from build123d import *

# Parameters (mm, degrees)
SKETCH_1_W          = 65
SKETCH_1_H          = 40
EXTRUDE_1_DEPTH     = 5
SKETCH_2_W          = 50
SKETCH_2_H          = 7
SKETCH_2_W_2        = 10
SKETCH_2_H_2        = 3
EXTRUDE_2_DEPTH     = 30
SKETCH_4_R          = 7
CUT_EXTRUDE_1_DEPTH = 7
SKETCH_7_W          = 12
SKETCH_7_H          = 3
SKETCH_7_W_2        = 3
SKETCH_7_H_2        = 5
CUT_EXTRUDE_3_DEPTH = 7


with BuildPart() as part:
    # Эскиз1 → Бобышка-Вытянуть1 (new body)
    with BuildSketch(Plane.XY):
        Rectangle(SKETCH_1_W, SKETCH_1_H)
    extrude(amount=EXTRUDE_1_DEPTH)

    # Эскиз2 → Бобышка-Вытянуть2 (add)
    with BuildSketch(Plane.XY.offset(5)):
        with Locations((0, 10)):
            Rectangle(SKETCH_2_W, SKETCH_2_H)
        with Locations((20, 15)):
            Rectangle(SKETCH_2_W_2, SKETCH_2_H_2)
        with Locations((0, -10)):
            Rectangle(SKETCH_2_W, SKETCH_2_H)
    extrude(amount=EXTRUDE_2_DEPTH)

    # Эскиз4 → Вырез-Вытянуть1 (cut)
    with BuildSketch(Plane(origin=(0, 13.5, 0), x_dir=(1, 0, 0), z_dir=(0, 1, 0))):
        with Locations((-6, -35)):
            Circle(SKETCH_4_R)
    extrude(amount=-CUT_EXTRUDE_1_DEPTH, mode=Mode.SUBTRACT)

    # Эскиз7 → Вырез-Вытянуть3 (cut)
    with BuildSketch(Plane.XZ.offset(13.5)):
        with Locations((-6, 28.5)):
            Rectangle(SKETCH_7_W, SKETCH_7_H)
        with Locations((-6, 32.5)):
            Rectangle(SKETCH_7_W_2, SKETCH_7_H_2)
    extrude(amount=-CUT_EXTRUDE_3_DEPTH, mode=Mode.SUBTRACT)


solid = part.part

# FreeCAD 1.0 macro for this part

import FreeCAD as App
import Part
import Sketcher


def add_polygon(sketch, points):
    """Adds a closed chain of lines whose ends are joined by coincident constraints."""
    first, n = sketch.GeometryCount, len(points)
    for a, b in zip(points, points[1:] + points[:1]):
        sketch.addGeometry(Part.LineSegment(App.Vector(*a, 0), App.Vector(*b, 0)), False)
    for i in range(n):
        sketch.addConstraint(Sketcher.Constraint("Coincident", first + i, 2, first + (i + 1) % n, 1))

doc = App.newDocument("Part")
body = doc.addObject("PartDesign::Body", "Body")

sketch1 = doc.addObject("Sketcher::SketchObject", "Sketch")
body.addObject(sketch1)
sketch1.AttachmentSupport = (doc.XY_Plane, [""])
sketch1.MapMode = "FlatFace"
add_polygon(sketch1, [(-32, 20), (-32, -20), (32, -20), (32, 20)])
sketch1.addConstraint([
    Sketcher.Constraint("Vertical", 0),
    Sketcher.Constraint("Horizontal", 1),
    Sketcher.Constraint("Vertical", 2),
    Sketcher.Constraint("Horizontal", 3),
    Sketcher.Constraint("Symmetric", 0, 2, 2, 2, -1, 1),
    Sketcher.Constraint("DistanceX", 1, 1, 1, 2, 65.0),
    Sketcher.Constraint("DistanceY", 0, 2, 0, 1, 40.0),
])
pad1 = doc.addObject("PartDesign::Pad", "Pad")
body.addObject(pad1)
pad1.Profile = sketch1
pad1.Length = 5

sketch2 = doc.addObject("Sketcher::SketchObject", "Sketch001")
body.addObject(sketch2)
sketch2.AttachmentSupport = (doc.XY_Plane, [""])
sketch2.MapMode = "FlatFace"
sketch2.AttachmentOffset = App.Placement(App.Vector(0, 0, 5), App.Rotation())
add_polygon(sketch2, [(-25, 13.5), (-25, 6.5), (25, 6.5), (25, 16.5), (15, 16.5), (15, 13.5)])
add_polygon(sketch2, [(-25, -6.5), (-25, -13.5), (25, -13.5), (25, -6.5)])
sketch2.addConstraint([
    Sketcher.Constraint("Vertical", 0),
    Sketcher.Constraint("Horizontal", 1),
    Sketcher.Constraint("Vertical", 2),
    Sketcher.Constraint("Horizontal", 3),
    Sketcher.Constraint("Vertical", 4),
    Sketcher.Constraint("Horizontal", 5),
    Sketcher.Constraint("Vertical", 6),
    Sketcher.Constraint("Horizontal", 7),
    Sketcher.Constraint("Vertical", 8),
    Sketcher.Constraint("Horizontal", 9),
    Sketcher.Constraint("Symmetric", 5, 2, 7, 2, -1, 1),
    Sketcher.Constraint("Symmetric", 1, 2, 9, 2, -1, 1),
    Sketcher.Constraint("Vertical", 5, 2, 6, 2),
    Sketcher.Constraint("Equal", 3, 2),
    Sketcher.Constraint("DistanceX", 1, 1, 1, 2, 50.0),
    Sketcher.Constraint("DistanceX", 3, 2, 3, 1, 10.0),
    Sketcher.Constraint("DistanceY", 0, 2, 0, 1, 7.0),
    Sketcher.Constraint("DistanceY", 6, 2, 0, 2, 20.0),
])
pad2 = doc.addObject("PartDesign::Pad", "Pad001")
body.addObject(pad2)
pad2.Profile = sketch2
pad2.Length = 30

sketch3 = doc.addObject("Sketcher::SketchObject", "Sketch002")
body.addObject(sketch3)
sketch3.AttachmentSupport = (doc.XZ_Plane, [""])
sketch3.MapMode = "FlatFace"
sketch3.AttachmentOffset = App.Placement(App.Vector(0, 0, -13.5), App.Rotation())
sketch3.addGeometry(Part.Circle(App.Vector(-6, 35, 0), App.Vector(0, 0, 1), 7), False)
sketch3.addConstraint([
    Sketcher.Constraint("Diameter", 0, 14.0),
    Sketcher.Constraint("DistanceX", 0, 3, -1, 1, 6.0),
    Sketcher.Constraint("DistanceY", -1, 1, 0, 3, 35.0),
])
pocket1 = doc.addObject("PartDesign::Pocket", "Pocket")
body.addObject(pocket1)
pocket1.Profile = sketch3
pocket1.Length = 7
pocket1.Reversed = True

sketch4 = doc.addObject("Sketcher::SketchObject", "Sketch003")
body.addObject(sketch4)
sketch4.AttachmentSupport = (doc.XZ_Plane, [""])
sketch4.MapMode = "FlatFace"
sketch4.AttachmentOffset = App.Placement(App.Vector(0, 0, 13.5), App.Rotation())
add_polygon(sketch4, [(-12, 30), (-12, 27), (0, 27), (0, 30), (-4.5, 30), (-4.5, 35), (-7.5, 35), (-7.5, 30)])
sketch4.addConstraint([
    Sketcher.Constraint("Vertical", 0),
    Sketcher.Constraint("Horizontal", 1),
    Sketcher.Constraint("Vertical", 2),
    Sketcher.Constraint("Horizontal", 3),
    Sketcher.Constraint("Vertical", 4),
    Sketcher.Constraint("Horizontal", 5),
    Sketcher.Constraint("Vertical", 6),
    Sketcher.Constraint("Horizontal", 7),
    Sketcher.Constraint("PointOnObject", 1, 2, -2),
    Sketcher.Constraint("Horizontal", 3, 2, 6, 2),
    Sketcher.Constraint("Equal", 3, 7),
    Sketcher.Constraint("Equal", 5, 0),
    Sketcher.Constraint("DistanceX", 1, 1, 1, 2, 12.0),
    Sketcher.Constraint("DistanceX", 5, 2, 5, 1, 3.0),
    Sketcher.Constraint("DistanceY", 4, 1, 4, 2, 5.0),
    Sketcher.Constraint("DistanceY", -1, 1, 0, 2, 27.0),
])
pocket2 = doc.addObject("PartDesign::Pocket", "Pocket001")
body.addObject(pocket2)
pocket2.Profile = sketch4
pocket2.Length = 7

doc.recompute()
